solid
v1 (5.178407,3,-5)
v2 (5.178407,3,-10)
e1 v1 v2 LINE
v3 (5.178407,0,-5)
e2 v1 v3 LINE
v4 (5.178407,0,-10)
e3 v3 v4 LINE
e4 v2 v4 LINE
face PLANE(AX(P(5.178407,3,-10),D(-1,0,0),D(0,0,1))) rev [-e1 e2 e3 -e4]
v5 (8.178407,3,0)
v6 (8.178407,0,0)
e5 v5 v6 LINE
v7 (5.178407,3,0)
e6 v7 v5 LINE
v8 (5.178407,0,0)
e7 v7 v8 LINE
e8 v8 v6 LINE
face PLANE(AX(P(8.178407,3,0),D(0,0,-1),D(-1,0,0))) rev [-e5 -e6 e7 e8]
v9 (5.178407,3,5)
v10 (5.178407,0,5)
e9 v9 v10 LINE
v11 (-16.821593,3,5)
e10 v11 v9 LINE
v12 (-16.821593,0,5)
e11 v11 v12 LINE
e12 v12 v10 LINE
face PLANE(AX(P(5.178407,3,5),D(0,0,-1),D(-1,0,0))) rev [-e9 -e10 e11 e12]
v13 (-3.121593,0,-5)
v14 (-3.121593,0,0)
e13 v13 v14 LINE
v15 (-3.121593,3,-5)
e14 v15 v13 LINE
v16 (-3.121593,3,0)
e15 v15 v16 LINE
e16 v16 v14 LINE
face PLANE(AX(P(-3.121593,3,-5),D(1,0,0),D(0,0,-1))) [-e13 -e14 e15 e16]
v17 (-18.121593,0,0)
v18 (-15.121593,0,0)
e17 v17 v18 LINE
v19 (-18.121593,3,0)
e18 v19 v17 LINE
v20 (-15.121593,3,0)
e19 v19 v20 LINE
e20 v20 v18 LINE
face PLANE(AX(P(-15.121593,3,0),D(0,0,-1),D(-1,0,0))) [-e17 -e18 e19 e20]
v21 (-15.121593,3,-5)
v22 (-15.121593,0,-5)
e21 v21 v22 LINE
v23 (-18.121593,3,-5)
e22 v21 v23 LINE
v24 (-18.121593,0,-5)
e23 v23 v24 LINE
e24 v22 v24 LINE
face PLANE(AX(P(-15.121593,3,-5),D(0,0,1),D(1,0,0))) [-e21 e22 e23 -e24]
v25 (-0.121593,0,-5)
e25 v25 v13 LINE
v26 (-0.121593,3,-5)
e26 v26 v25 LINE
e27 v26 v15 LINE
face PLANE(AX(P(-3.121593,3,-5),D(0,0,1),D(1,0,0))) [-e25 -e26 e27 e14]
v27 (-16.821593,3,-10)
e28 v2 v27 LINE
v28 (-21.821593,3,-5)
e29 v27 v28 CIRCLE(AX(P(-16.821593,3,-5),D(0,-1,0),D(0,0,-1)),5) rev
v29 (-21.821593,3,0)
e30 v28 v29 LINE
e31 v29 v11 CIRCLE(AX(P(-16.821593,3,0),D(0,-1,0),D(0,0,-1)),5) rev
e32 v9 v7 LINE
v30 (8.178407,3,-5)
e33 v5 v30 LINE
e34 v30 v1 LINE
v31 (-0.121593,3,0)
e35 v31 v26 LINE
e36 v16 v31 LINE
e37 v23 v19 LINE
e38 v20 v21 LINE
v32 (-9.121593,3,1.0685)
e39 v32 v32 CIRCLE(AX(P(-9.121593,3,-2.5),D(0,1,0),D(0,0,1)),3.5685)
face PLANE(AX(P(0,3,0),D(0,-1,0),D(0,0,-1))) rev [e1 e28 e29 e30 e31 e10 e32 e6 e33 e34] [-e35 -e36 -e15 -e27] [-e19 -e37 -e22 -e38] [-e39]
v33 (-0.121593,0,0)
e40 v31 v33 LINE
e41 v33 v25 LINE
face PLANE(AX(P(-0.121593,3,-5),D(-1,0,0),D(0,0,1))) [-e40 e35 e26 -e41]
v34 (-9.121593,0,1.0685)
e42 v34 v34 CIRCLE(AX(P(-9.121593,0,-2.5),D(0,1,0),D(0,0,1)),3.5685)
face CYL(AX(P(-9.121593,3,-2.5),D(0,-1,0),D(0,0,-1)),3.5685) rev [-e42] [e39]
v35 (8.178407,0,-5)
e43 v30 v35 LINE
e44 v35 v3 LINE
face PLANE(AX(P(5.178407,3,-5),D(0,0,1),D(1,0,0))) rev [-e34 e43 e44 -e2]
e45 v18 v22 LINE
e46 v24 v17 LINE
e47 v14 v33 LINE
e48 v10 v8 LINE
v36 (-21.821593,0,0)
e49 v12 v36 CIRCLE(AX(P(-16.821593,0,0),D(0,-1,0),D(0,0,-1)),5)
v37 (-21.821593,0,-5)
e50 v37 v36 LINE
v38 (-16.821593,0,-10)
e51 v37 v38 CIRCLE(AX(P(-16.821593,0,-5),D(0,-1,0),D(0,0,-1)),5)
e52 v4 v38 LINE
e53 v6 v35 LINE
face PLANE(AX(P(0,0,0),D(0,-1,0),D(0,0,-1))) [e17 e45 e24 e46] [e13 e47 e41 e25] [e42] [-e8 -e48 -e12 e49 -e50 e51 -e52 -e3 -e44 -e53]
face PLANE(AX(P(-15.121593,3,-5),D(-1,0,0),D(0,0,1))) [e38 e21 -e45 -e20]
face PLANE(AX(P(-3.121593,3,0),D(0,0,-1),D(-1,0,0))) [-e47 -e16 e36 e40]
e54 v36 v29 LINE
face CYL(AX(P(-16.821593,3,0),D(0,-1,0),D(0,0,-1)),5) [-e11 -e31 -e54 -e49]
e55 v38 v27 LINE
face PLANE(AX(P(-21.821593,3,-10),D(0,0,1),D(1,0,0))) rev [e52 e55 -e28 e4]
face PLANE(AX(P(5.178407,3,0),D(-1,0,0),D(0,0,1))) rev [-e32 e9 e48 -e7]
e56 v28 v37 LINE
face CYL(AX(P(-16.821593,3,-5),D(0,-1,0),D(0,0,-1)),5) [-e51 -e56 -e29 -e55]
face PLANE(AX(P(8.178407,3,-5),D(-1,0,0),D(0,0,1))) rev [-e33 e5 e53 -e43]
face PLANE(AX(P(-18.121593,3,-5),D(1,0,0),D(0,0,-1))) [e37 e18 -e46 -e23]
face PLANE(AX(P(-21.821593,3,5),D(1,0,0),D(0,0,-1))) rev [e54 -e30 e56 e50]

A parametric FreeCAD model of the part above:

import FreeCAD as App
import Part
import Sketcher
from FreeCAD import Vector


def edges_at(feature, points):
    """Names of the edges that pass closest to the given points."""
    edges = feature.Shape.Edges
    near = lambda p: min(range(len(edges)), key=lambda i: edges[i].distToShape(Part.Vertex(*p))[0])
    return sorted({f"Edge{near(p) + 1}" for p in points})

doc = App.newDocument("Part")
body = doc.addObject("PartDesign::Body", "Body")

# Sketch on XZ plane
sketch1 = body.newObject("Sketcher::SketchObject", "Sketch")
sketch1.AttachmentSupport = (doc.getObject("XZ_Plane"), [""])
sketch1.MapMode = "FlatFace"
sketch1.addGeometry([
    Part.LineSegment(Vector(-21.8, -10, 0), Vector(-21.8, 5, 0)),  # 0
    Part.LineSegment(Vector(-21.8, 5, 0), Vector(5.2, 5, 0)),  # 1
    Part.LineSegment(Vector(5.2, 5, 0), Vector(5.2, 0, 0)),  # 2
    Part.LineSegment(Vector(5.2, 0, 0), Vector(8.2, 0, 0)),  # 3
    Part.LineSegment(Vector(8.2, 0, 0), Vector(8.2, -5, 0)),  # 4
    Part.LineSegment(Vector(8.2, -5, 0), Vector(5.2, -5, 0)),  # 5
    Part.LineSegment(Vector(5.2, -5, 0), Vector(5.2, -10, 0)),  # 6
    Part.LineSegment(Vector(5.2, -10, 0), Vector(-21.8, -10, 0)),  # 7
    Part.LineSegment(Vector(-3.1, 0, 0), Vector(-3.1, -5, 0)),  # 8
    Part.LineSegment(Vector(-3.1, -5, 0), Vector(-0.1, -5, 0)),  # 9
    Part.LineSegment(Vector(-0.1, -5, 0), Vector(-0.1, 0, 0)),  # 10
    Part.LineSegment(Vector(-0.1, 0, 0), Vector(-3.1, 0, 0)),  # 11
    Part.Circle(Vector(-9.1, -2.5, 0), Vector(0, 0, 1), 3.6),  # 12
    Part.LineSegment(Vector(-18.1, 0, 0), Vector(-18.1, -5, 0)),  # 13
    Part.LineSegment(Vector(-18.1, -5, 0), Vector(-15.1, -5, 0)),  # 14
    Part.LineSegment(Vector(-15.1, -5, 0), Vector(-15.1, 0, 0)),  # 15
    Part.LineSegment(Vector(-15.1, 0, 0), Vector(-18.1, 0, 0)),  # 16
], False)
sketch1.addConstraint([
    Sketcher.Constraint("Coincident", 0, 2, 1, 1),
    Sketcher.Constraint("Coincident", 1, 2, 2, 1),
    Sketcher.Constraint("Coincident", 2, 2, 3, 1),
    Sketcher.Constraint("Coincident", 3, 2, 4, 1),
    Sketcher.Constraint("Coincident", 4, 2, 5, 1),
    Sketcher.Constraint("Coincident", 5, 2, 6, 1),
    Sketcher.Constraint("Coincident", 6, 2, 7, 1),
    Sketcher.Constraint("Coincident", 7, 2, 0, 1),
    Sketcher.Constraint("Coincident", 8, 2, 9, 1),
    Sketcher.Constraint("Coincident", 9, 2, 10, 1),
    Sketcher.Constraint("Coincident", 10, 2, 11, 1),
    Sketcher.Constraint("Coincident", 11, 2, 8, 1),
    Sketcher.Constraint("Coincident", 13, 2, 14, 1),
    Sketcher.Constraint("Coincident", 14, 2, 15, 1),
    Sketcher.Constraint("Coincident", 15, 2, 16, 1),
    Sketcher.Constraint("Coincident", 16, 2, 13, 1),
    Sketcher.Constraint("Vertical", 0),
    Sketcher.Constraint("Horizontal", 1),
    Sketcher.Constraint("Vertical", 2),
    Sketcher.Constraint("Horizontal", 3),
    Sketcher.Constraint("Vertical", 4),
    Sketcher.Constraint("Horizontal", 5),
    Sketcher.Constraint("Vertical", 6),
    Sketcher.Constraint("Horizontal", 7),
    Sketcher.Constraint("Vertical", 8),
    Sketcher.Constraint("Horizontal", 9),
    Sketcher.Constraint("Vertical", 10),
    Sketcher.Constraint("Horizontal", 11),
    Sketcher.Constraint("Vertical", 13),
    Sketcher.Constraint("Horizontal", 14),
    Sketcher.Constraint("Vertical", 15),
    Sketcher.Constraint("Horizontal", 16),
    Sketcher.Constraint("Symmetric", 1, 2, 5, 2, -1),
    Sketcher.Constraint("PointOnObject", 2, 2, -1),
    Sketcher.Constraint("PointOnObject", 10, 2, -1),
    Sketcher.Constraint("PointOnObject", 15, 2, -1),
    Sketcher.Constraint("Horizontal", 5, 2, 8, 2),
    Sketcher.Constraint("Horizontal", 9, 2, 13, 2),
    Sketcher.Constraint("Equal", 5, 9),
    Sketcher.Constraint("Equal", 11, 14),
    Sketcher.Constraint("Equal", 4, 6),
    Sketcher.Constraint("DistanceX", 1, 1, 1, 2, 27.0),
    Sketcher.Constraint("DistanceX", 3, 1, 3, 2, 3.0),
    Sketcher.Constraint("DistanceY", 0, 1, 0, 2, 15.0),
    Sketcher.Constraint("Diameter", 12, 7.137),
    Sketcher.Constraint("DistanceX", 12, 3, 8, 2, 6.0),
    Sketcher.Constraint("DistanceX", 13, 2, 12, 3, 9.0),
    Sketcher.Constraint("DistanceY", 12, 3, -1, 1, 2.5),
    Sketcher.Constraint("DistanceX", 0, 2, 12, 3, 12.7),
    Sketcher.Constraint("DistanceX", 12, 3, -1, 1, 9.121593),
])
pad1 = body.newObject("PartDesign::Pad", "Pad")
pad1.Profile = sketch1
pad1.Length = 3
pad1.Reversed = True
doc.recompute()

fillet = body.newObject("PartDesign::Fillet", "Fillet")
fillet.Base = (pad1, edges_at(pad1, [(-21.822, 1.5, 5), (-21.822, 1.5, -10)]))
fillet.Radius = 5

doc.recompute()
